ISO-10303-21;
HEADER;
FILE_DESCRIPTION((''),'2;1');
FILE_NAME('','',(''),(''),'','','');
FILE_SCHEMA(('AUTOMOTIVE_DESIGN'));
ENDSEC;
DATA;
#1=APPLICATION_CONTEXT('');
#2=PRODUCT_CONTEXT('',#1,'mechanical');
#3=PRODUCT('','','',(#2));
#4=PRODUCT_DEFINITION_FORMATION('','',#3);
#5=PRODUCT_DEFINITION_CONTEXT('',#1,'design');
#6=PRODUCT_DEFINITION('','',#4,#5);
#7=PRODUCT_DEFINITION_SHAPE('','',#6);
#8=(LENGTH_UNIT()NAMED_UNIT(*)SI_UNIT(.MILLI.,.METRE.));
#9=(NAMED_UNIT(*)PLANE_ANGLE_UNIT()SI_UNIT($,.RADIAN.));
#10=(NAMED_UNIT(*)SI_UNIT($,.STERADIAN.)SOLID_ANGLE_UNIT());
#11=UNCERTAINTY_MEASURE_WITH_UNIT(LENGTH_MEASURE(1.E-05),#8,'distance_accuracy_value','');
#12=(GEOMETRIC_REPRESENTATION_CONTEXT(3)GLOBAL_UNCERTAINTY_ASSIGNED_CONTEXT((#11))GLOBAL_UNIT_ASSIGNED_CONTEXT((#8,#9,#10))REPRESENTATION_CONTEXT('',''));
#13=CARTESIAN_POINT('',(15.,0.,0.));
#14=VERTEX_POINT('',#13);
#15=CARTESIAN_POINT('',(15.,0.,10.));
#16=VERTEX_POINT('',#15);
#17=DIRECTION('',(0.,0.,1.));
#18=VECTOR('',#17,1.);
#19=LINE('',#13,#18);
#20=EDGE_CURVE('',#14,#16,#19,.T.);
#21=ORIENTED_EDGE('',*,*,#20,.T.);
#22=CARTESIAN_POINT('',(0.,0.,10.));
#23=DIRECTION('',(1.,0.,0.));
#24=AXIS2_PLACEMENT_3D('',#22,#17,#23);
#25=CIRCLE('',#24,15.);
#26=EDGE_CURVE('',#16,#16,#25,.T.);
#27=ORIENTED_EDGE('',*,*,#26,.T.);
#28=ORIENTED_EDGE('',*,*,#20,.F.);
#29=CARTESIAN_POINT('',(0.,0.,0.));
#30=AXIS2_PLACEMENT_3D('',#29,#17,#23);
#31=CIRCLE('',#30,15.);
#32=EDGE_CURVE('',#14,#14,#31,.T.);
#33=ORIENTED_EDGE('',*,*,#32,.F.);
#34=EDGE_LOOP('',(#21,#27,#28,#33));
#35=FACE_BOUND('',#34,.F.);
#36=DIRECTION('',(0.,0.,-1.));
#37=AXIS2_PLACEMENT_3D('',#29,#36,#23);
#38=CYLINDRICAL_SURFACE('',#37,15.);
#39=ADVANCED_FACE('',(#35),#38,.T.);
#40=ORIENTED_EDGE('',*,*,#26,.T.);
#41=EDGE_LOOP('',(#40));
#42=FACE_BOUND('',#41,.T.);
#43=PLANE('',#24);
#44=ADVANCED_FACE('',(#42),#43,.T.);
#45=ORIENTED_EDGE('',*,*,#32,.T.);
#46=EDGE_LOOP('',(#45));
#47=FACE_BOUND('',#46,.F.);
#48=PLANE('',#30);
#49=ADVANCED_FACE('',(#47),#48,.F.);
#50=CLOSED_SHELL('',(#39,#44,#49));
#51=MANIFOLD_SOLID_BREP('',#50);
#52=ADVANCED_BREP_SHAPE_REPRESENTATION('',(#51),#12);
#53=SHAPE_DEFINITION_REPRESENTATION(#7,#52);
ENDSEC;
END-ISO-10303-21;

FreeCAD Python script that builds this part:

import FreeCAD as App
import Part
import Sketcher

V = App.Vector

doc = App.newDocument("Part")
body = doc.addObject("PartDesign::Body", "Body")

sketch1 = doc.addObject("Sketcher::SketchObject", "Sketch")
body.addObject(sketch1)
sketch1.AttachmentSupport = (doc.XY_Plane, [""])
sketch1.MapMode = "FlatFace"
sketch1.addGeometry(Part.Circle(V(0, 0, 0), V(0, 0, 1), 15), False)
sketch1.addConstraint([
    Sketcher.Constraint("Coincident", 0, 3, -1, 1),
    Sketcher.Constraint("Diameter", 0, 30.0),
])
pad1 = doc.addObject("PartDesign::Pad", "Pad")
body.addObject(pad1)
pad1.Profile = sketch1
pad1.Length = 10

doc.recompute()
